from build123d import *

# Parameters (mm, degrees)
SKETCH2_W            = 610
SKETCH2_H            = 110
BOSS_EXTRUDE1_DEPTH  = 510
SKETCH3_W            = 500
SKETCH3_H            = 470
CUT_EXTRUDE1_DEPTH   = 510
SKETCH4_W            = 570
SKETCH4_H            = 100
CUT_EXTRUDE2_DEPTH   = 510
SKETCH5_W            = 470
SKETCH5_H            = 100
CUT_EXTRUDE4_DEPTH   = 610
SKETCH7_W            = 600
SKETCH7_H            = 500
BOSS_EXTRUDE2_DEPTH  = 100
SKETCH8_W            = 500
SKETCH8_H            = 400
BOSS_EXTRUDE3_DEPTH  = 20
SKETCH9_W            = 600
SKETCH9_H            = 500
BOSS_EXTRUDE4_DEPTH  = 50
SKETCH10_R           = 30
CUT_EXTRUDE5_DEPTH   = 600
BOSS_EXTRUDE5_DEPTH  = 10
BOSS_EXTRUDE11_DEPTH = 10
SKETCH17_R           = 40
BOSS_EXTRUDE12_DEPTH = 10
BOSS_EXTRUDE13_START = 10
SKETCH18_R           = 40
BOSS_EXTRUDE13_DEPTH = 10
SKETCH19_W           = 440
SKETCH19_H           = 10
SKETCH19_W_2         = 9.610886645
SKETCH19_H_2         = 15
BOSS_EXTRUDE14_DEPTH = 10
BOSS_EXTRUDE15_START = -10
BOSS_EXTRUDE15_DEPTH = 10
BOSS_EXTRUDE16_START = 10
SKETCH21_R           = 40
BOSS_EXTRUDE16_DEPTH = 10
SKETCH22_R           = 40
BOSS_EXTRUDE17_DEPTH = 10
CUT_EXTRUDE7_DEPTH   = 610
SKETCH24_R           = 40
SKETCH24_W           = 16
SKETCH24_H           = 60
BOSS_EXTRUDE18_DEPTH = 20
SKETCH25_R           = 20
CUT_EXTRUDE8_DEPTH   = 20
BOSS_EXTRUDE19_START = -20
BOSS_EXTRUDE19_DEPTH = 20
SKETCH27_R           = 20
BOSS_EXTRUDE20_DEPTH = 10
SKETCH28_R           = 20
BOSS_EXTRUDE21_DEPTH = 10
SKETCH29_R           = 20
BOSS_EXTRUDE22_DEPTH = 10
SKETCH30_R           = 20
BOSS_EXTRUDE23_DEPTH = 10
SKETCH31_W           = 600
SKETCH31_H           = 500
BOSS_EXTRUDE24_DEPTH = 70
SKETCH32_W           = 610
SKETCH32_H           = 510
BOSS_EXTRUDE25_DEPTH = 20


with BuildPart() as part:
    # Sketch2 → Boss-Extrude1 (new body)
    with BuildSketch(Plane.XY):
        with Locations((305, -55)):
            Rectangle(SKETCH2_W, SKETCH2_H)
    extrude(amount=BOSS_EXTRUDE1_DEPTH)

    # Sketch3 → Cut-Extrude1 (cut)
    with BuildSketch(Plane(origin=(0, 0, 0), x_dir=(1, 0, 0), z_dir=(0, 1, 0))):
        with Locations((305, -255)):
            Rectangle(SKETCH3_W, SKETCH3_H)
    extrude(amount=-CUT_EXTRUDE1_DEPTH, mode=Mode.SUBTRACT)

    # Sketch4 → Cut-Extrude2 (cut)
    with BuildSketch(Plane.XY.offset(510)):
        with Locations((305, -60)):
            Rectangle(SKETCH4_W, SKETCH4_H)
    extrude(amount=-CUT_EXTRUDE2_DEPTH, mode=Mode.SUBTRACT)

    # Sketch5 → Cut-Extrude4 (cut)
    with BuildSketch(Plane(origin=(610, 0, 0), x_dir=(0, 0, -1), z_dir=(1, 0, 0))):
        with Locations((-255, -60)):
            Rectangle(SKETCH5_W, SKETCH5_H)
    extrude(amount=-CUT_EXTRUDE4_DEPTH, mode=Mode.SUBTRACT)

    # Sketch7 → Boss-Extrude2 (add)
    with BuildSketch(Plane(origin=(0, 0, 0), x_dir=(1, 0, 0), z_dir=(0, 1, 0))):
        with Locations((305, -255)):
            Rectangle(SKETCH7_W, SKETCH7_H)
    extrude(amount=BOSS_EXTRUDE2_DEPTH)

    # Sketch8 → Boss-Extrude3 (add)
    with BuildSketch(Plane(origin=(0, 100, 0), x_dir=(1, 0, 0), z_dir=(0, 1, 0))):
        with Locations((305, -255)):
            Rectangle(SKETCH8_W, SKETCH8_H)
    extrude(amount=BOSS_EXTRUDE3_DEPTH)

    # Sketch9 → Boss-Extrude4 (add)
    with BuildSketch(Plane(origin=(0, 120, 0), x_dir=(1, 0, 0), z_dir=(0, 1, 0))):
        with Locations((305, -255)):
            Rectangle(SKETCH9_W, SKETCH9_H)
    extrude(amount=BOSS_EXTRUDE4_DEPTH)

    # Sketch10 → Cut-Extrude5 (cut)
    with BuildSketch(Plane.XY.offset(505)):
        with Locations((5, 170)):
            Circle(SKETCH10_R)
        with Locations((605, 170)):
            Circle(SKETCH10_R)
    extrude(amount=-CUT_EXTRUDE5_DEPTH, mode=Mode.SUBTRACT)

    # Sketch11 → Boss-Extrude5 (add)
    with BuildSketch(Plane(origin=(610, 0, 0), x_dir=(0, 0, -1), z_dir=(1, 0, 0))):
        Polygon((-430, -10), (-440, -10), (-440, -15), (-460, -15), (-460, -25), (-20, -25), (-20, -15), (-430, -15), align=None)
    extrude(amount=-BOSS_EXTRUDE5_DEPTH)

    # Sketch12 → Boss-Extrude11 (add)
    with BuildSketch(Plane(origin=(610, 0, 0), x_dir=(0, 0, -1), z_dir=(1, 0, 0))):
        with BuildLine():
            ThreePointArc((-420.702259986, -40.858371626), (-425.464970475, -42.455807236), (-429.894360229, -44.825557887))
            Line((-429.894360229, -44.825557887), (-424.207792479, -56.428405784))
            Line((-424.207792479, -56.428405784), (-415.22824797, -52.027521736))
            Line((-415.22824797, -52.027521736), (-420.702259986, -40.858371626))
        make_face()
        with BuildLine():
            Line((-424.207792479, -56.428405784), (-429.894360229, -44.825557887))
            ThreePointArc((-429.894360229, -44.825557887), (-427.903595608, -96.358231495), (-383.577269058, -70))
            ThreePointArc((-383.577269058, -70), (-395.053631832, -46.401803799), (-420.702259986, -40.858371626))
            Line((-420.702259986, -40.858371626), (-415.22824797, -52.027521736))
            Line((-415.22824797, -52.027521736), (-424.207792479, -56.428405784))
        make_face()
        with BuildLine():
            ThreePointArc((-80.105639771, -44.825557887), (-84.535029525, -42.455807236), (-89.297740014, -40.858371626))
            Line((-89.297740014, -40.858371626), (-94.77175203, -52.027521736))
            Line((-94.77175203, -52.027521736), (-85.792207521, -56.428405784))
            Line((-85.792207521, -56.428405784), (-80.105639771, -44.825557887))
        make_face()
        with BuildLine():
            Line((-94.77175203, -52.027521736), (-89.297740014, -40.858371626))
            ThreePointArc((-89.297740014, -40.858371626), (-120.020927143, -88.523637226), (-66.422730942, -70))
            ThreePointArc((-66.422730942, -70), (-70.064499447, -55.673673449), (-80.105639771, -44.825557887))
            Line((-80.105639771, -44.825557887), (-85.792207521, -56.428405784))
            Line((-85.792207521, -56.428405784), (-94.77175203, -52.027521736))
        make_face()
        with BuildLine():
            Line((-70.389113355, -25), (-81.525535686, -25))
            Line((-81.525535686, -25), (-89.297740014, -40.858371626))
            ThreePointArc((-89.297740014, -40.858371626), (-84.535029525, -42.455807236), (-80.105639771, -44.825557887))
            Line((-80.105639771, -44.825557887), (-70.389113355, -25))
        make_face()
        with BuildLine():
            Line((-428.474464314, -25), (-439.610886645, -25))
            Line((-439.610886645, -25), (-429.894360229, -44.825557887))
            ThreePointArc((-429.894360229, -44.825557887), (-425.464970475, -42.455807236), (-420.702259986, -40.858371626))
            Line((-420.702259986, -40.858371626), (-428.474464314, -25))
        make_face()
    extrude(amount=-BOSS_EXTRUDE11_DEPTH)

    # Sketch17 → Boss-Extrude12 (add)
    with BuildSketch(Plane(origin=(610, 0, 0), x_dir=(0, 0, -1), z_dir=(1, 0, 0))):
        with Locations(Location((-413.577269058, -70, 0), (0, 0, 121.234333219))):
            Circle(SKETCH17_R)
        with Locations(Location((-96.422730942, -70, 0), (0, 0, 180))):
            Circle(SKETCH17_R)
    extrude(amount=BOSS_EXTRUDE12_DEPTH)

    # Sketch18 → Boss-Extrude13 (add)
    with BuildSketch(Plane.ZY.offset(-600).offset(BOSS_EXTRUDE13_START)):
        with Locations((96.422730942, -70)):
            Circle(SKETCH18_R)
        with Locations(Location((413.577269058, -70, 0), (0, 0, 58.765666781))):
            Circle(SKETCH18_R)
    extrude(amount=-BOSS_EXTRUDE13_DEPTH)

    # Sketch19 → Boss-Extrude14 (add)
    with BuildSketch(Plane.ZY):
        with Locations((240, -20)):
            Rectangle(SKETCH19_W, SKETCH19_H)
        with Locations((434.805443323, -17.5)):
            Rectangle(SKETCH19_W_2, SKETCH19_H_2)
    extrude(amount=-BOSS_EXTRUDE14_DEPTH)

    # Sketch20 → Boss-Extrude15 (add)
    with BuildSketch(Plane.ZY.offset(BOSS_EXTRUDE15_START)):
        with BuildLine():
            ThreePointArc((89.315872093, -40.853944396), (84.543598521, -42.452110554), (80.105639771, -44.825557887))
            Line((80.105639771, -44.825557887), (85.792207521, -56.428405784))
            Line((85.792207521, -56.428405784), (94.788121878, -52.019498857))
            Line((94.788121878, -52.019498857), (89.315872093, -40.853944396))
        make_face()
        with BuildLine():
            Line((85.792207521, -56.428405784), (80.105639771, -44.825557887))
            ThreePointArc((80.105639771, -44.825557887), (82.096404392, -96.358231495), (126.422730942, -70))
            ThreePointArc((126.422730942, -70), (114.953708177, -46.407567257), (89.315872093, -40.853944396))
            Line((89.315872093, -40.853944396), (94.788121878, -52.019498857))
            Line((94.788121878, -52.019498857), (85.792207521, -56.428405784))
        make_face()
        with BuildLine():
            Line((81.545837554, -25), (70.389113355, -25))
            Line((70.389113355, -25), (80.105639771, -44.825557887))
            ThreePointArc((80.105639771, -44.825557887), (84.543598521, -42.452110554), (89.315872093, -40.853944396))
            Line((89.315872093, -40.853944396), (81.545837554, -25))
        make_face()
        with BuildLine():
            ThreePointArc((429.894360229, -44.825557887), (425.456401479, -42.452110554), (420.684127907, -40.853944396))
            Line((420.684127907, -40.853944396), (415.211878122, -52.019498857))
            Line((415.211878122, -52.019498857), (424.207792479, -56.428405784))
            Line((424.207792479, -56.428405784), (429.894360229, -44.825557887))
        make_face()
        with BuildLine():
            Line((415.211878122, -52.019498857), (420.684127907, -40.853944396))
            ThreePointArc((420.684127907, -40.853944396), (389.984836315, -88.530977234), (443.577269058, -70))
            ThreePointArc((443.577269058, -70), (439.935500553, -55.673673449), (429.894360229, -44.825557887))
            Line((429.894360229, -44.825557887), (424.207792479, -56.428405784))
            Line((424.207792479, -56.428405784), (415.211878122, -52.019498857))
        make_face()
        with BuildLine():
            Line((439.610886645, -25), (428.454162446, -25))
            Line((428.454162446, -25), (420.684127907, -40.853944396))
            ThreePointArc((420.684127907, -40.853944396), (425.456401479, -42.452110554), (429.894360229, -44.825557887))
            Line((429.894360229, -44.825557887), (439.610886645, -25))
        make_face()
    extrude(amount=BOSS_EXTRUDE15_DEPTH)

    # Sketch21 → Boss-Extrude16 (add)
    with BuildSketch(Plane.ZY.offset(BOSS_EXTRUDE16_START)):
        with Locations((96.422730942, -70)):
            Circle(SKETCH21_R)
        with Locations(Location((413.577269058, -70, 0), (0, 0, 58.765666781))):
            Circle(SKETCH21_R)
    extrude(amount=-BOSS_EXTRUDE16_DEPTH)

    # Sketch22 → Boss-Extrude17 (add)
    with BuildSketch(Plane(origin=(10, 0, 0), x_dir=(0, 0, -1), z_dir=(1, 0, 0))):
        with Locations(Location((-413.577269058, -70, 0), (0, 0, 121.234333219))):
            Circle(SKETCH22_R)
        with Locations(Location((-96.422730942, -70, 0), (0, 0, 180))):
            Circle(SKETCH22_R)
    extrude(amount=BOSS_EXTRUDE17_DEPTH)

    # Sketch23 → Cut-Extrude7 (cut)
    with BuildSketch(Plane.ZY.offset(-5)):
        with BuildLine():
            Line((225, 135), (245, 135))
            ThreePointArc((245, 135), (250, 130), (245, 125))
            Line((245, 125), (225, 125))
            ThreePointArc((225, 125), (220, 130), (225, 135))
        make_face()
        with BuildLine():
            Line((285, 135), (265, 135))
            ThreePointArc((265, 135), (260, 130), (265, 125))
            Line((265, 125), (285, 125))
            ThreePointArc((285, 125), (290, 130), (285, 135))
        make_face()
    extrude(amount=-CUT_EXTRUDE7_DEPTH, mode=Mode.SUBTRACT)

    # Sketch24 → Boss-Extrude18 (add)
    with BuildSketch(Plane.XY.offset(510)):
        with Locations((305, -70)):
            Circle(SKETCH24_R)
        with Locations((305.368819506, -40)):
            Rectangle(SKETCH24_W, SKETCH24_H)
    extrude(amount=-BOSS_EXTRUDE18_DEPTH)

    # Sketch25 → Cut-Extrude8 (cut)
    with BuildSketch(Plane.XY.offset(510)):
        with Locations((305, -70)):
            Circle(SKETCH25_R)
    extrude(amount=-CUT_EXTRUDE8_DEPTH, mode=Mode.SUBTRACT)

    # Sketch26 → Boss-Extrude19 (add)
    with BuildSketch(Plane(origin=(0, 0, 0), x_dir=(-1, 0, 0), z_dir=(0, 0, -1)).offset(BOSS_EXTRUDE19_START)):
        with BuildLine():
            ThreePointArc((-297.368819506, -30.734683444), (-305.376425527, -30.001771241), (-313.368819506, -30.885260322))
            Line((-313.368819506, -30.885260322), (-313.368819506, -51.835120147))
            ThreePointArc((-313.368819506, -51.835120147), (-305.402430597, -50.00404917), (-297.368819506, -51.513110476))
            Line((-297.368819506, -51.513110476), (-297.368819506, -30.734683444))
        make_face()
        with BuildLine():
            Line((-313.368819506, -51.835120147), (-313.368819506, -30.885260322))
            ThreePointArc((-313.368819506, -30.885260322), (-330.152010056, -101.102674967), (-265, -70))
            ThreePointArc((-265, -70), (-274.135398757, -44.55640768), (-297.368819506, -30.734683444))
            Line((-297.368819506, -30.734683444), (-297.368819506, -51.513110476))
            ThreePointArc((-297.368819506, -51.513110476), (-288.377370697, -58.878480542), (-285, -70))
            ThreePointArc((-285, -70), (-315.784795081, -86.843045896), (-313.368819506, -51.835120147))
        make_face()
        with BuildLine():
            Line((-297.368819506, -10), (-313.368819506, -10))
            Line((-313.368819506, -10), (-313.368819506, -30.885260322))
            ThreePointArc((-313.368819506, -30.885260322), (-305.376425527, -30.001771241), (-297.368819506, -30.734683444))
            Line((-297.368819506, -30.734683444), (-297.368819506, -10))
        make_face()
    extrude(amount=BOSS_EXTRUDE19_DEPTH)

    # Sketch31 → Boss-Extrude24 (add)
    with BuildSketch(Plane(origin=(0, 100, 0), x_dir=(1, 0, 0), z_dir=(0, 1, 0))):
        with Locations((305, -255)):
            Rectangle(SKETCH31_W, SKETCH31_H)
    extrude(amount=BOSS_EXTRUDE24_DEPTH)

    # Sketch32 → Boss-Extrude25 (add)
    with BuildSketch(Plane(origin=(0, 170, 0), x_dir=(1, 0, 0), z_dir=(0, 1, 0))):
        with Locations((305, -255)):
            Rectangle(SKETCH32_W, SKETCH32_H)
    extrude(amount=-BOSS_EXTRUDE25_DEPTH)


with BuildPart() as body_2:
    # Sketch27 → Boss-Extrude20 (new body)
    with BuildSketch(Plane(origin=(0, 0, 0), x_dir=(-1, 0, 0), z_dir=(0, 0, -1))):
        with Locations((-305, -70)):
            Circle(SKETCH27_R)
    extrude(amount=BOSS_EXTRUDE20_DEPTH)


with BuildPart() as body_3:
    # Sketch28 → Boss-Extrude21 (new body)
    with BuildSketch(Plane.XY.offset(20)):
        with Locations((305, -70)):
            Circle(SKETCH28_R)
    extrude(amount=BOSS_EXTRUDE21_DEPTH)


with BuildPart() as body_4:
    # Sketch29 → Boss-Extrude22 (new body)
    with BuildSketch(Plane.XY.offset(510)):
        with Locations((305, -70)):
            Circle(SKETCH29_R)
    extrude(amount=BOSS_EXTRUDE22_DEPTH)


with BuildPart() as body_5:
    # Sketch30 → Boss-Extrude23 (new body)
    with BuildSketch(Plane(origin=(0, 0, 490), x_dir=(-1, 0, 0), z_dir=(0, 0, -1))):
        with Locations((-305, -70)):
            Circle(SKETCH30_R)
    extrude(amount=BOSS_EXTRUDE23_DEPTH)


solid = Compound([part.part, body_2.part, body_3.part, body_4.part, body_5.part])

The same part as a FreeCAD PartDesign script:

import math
import FreeCAD as App
import Part
import Sketcher
from FreeCAD import Vector
Q = App.Units.Quantity


def add_polygon(sketch, points):
    """Adds a closed chain of lines whose ends are joined by coincident constraints."""
    first, n = sketch.GeometryCount, len(points)
    for a, b in zip(points, points[1:] + points[:1]):
        sketch.addGeometry(Part.LineSegment(App.Vector(*a, 0), App.Vector(*b, 0)), False)
    for i in range(n):
        sketch.addConstraint(Sketcher.Constraint("Coincident", first + i, 2, first + (i + 1) % n, 1))

doc = App.newDocument("Part")
body = doc.addObject("PartDesign::Body", "Body")

sketch1 = body.newObject("Sketcher::SketchObject", "Sketch")
sketch1.AttachmentSupport = (doc.getObject("XY_Plane"), [""])
sketch1.MapMode = "FlatFace"
add_polygon(sketch1, [(0, 0), (0, -110), (610, -110), (610, 0)])
sketch1.addConstraint([
    Sketcher.Constraint("Vertical", 0),
    Sketcher.Constraint("Horizontal", 1),
    Sketcher.Constraint("Vertical", 2),
    Sketcher.Constraint("Horizontal", 3),
    Sketcher.Constraint("Coincident", 3, 2, -1, 1),
    Sketcher.Constraint("DistanceX", 1, 1, 1, 2, Q("610 mm")),
    Sketcher.Constraint("DistanceY", 0, 2, 0, 1, Q("110 mm")),
])
pad1 = body.newObject("PartDesign::Pad", "Pad")
pad1.Profile = sketch1
pad1.Length = 510

sketch2 = body.newObject("Sketcher::SketchObject", "Sketch001")
sketch2.AttachmentSupport = (doc.getObject("XZ_Plane"), [""])
sketch2.MapMode = "FlatFace"
add_polygon(sketch2, [(55, 20), (55, 490), (555, 490), (555, 20)])
sketch2.addConstraint([
    Sketcher.Constraint("Vertical", 0),
    Sketcher.Constraint("Horizontal", 1),
    Sketcher.Constraint("Vertical", 2),
    Sketcher.Constraint("Horizontal", 3),
    Sketcher.Constraint("DistanceX", 1, 1, 1, 2, Q("500 mm")),
    Sketcher.Constraint("DistanceY", 0, 1, 0, 2, Q("470 mm")),
    Sketcher.Constraint("DistanceX", -1, 1, 0, 2, Q("55 mm")),
    Sketcher.Constraint("DistanceY", -1, 1, 0, 2, Q("490 mm")),
])
pocket1 = body.newObject("PartDesign::Pocket", "Pocket")
pocket1.Profile = sketch2
pocket1.Length = 510
pocket1.Reversed = True

sketch3 = body.newObject("Sketcher::SketchObject", "Sketch002")
sketch3.AttachmentSupport = (doc.getObject("XY_Plane"), [""])
sketch3.MapMode = "FlatFace"
sketch3.AttachmentOffset = App.Placement(Vector(0, 0, 510), App.Rotation())
add_polygon(sketch3, [(20, -10), (20, -110), (590, -110), (590, -10)])
sketch3.addConstraint([
    Sketcher.Constraint("Vertical", 0),
    Sketcher.Constraint("Horizontal", 1),
    Sketcher.Constraint("Vertical", 2),
    Sketcher.Constraint("Horizontal", 3),
    Sketcher.Constraint("DistanceX", 1, 1, 1, 2, Q("570 mm")),
    Sketcher.Constraint("DistanceY", 0, 2, 0, 1, Q("100 mm")),
    Sketcher.Constraint("DistanceX", -1, 1, 0, 2, Q("20 mm")),
    Sketcher.Constraint("DistanceY", 0, 2, -1, 1, Q("110 mm")),
])
pocket2 = body.newObject("PartDesign::Pocket", "Pocket001")
pocket2.Profile = sketch3
pocket2.Length = 510

sketch4 = body.newObject("Sketcher::SketchObject", "Sketch003")
sketch4.AttachmentSupport = (doc.getObject("YZ_Plane"), [""])
sketch4.MapMode = "FlatFace"
sketch4.AttachmentOffset = App.Placement(Vector(0, 0, 610), App.Rotation())
add_polygon(sketch4, [(-10, 490), (-110, 490), (-110, 20), (-10, 20)])
sketch4.addConstraint([
    Sketcher.Constraint("Horizontal", 0),
    Sketcher.Constraint("Vertical", 1),
    Sketcher.Constraint("Horizontal", 2),
    Sketcher.Constraint("Vertical", 3),
    Sketcher.Constraint("DistanceX", 0, 2, 0, 1, Q("100 mm")),
    Sketcher.Constraint("DistanceY", 1, 2, 1, 1, Q("470 mm")),
    Sketcher.Constraint("DistanceX", 0, 2, -1, 1, Q("110 mm")),
    Sketcher.Constraint("DistanceY", -1, 1, 0, 2, Q("490 mm")),
])
pocket3 = body.newObject("PartDesign::Pocket", "Pocket002")
pocket3.Profile = sketch4
pocket3.Length = 610

sketch5 = body.newObject("Sketcher::SketchObject", "Sketch004")
sketch5.AttachmentSupport = (doc.getObject("XZ_Plane"), [""])
sketch5.MapMode = "FlatFace"
add_polygon(sketch5, [(5, 5), (5, 505), (605, 505), (605, 5)])
sketch5.addConstraint([
    Sketcher.Constraint("Vertical", 0),
    Sketcher.Constraint("Horizontal", 1),
    Sketcher.Constraint("Vertical", 2),
    Sketcher.Constraint("Horizontal", 3),
    Sketcher.Constraint("DistanceX", 1, 1, 1, 2, Q("600 mm")),
    Sketcher.Constraint("DistanceY", 0, 1, 0, 2, Q("500 mm")),
    Sketcher.Constraint("DistanceX", -1, 1, 0, 2, Q("5 mm")),
    Sketcher.Constraint("DistanceY", -1, 1, 0, 2, Q("505 mm")),
])
pad2 = body.newObject("PartDesign::Pad", "Pad001")
pad2.Profile = sketch5
pad2.Length = 100
pad2.Reversed = True

sketch6 = body.newObject("Sketcher::SketchObject", "Sketch005")
sketch6.AttachmentSupport = (doc.getObject("XZ_Plane"), [""])
sketch6.MapMode = "FlatFace"
sketch6.AttachmentOffset = App.Placement(Vector(0, 0, -100), App.Rotation())
add_polygon(sketch6, [(55, 55), (55, 455), (555, 455), (555, 55)])
sketch6.addConstraint([
    Sketcher.Constraint("Vertical", 0),
    Sketcher.Constraint("Horizontal", 1),
    Sketcher.Constraint("Vertical", 2),
    Sketcher.Constraint("Horizontal", 3),
    Sketcher.Constraint("DistanceX", 1, 1, 1, 2, Q("500 mm")),
    Sketcher.Constraint("DistanceY", 0, 1, 0, 2, Q("400 mm")),
    Sketcher.Constraint("DistanceX", -1, 1, 0, 2, Q("55 mm")),
    Sketcher.Constraint("DistanceY", -1, 1, 0, 2, Q("455 mm")),
])
pad3 = body.newObject("PartDesign::Pad", "Pad002")
pad3.Profile = sketch6
pad3.Length = 20
pad3.Reversed = True

sketch7 = body.newObject("Sketcher::SketchObject", "Sketch006")
sketch7.AttachmentSupport = (doc.getObject("XZ_Plane"), [""])
sketch7.MapMode = "FlatFace"
sketch7.AttachmentOffset = App.Placement(Vector(0, 0, -120), App.Rotation())
add_polygon(sketch7, [(5, 5), (5, 505), (605, 505), (605, 5)])
sketch7.addConstraint([
    Sketcher.Constraint("Vertical", 0),
    Sketcher.Constraint("Horizontal", 1),
    Sketcher.Constraint("Vertical", 2),
    Sketcher.Constraint("Horizontal", 3),
    Sketcher.Constraint("DistanceX", 1, 1, 1, 2, Q("600 mm")),
    Sketcher.Constraint("DistanceY", 0, 1, 0, 2, Q("500 mm")),
    Sketcher.Constraint("DistanceX", -1, 1, 0, 2, Q("5 mm")),
    Sketcher.Constraint("DistanceY", -1, 1, 0, 2, Q("505 mm")),
])
pad4 = body.newObject("PartDesign::Pad", "Pad003")
pad4.Profile = sketch7
pad4.Length = 50
pad4.Reversed = True

sketch8 = body.newObject("Sketcher::SketchObject", "Sketch007")
sketch8.AttachmentSupport = (doc.getObject("XY_Plane"), [""])
sketch8.MapMode = "FlatFace"
sketch8.AttachmentOffset = App.Placement(Vector(0, 0, 505), App.Rotation())
sketch8.addGeometry([
    Part.Circle(Vector(5, 170, 0), Vector(0, 0, 1), 30),
    Part.Circle(Vector(605, 170, 0), Vector(0, 0, 1), 30),
], False)
sketch8.addConstraint([
    Sketcher.Constraint("Equal", 0, 1),
    Sketcher.Constraint("Horizontal", 0, 3, 1, 3),
    Sketcher.Constraint("Diameter", 0, Q("60 mm")),
    Sketcher.Constraint("DistanceX", -1, 1, 0, 3, Q("5 mm")),
    Sketcher.Constraint("DistanceY", -1, 1, 0, 3, Q("170 mm")),
    Sketcher.Constraint("DistanceX", -1, 1, 1, 3, Q("605 mm")),
])
pocket4 = body.newObject("PartDesign::Pocket", "Pocket003")
pocket4.Profile = sketch8
pocket4.Length = 600

sketch9 = body.newObject("Sketcher::SketchObject", "Sketch008")
sketch9.AttachmentSupport = (doc.getObject("YZ_Plane"), [""])
sketch9.MapMode = "FlatFace"
sketch9.AttachmentOffset = App.Placement(Vector(0, 0, 610), App.Rotation())
add_polygon(sketch9, [(-10, 430), (-10, 440), (-15, 440), (-15, 460), (-25, 460), (-25, 20), (-15, 20), (-15, 430)])
sketch9.addConstraint([
    Sketcher.Constraint("Vertical", 0),
    Sketcher.Constraint("Horizontal", 1),
    Sketcher.Constraint("Vertical", 2),
    Sketcher.Constraint("Horizontal", 3),
    Sketcher.Constraint("Vertical", 4),
    Sketcher.Constraint("Horizontal", 5),
    Sketcher.Constraint("Vertical", 6),
    Sketcher.Constraint("Horizontal", 7),
    Sketcher.Constraint("Vertical", 2, 2, 5, 2),
    Sketcher.Constraint("Equal", 5, 0),
    Sketcher.Constraint("DistanceX", 1, 2, 1, 1, Q("5 mm")),
    Sketcher.Constraint("DistanceX", 3, 2, 3, 1, Q("10 mm")),
    Sketcher.Constraint("DistanceY", 2, 1, 2, 2, Q("20 mm")),
    Sketcher.Constraint("DistanceY", 4, 2, 4, 1, Q("440 mm")),
    Sketcher.Constraint("DistanceX", 0, 2, -1, 1, Q("10 mm")),
    Sketcher.Constraint("DistanceY", -1, 1, 0, 2, Q("440 mm")),
])
pad5 = body.newObject("PartDesign::Pad", "Pad004")
pad5.Profile = sketch9
pad5.Length = 10
pad5.Reversed = True

sketch10 = body.newObject("Sketcher::SketchObject", "Sketch009")
sketch10.AttachmentSupport = (doc.getObject("YZ_Plane"), [""])
sketch10.MapMode = "FlatFace"
sketch10.AttachmentOffset = App.Placement(Vector(0, 0, 610), App.Rotation())
sketch10.addGeometry([
    Part.ArcOfCircle(Part.Circle(Vector(-70, 414, 0), Vector(0, 0, 1), 30), math.radians(33), math.radians(270)),
    Part.ArcOfCircle(Part.Circle(Vector(-70, 414, 0), Vector(0, 0, 1), 30), math.radians(-90), math.radians(14)),
    Part.LineSegment(Vector(-41, 421, 0), Vector(-25, 428, 0)),
    Part.LineSegment(Vector(-25, 428, 0), Vector(-25, 440, 0)),
    Part.LineSegment(Vector(-25, 440, 0), Vector(-45, 430, 0)),
    Part.ArcOfCircle(Part.Circle(Vector(-70, 96, 0), Vector(0, 0, 1), 30), math.radians(-14), math.radians(270)),
    Part.ArcOfCircle(Part.Circle(Vector(-70, 96, 0), Vector(0, 0, 1), 30), math.radians(-90), math.radians(-33)),
    Part.LineSegment(Vector(-45, 80, 0), Vector(-25, 70, 0)),
    Part.LineSegment(Vector(-25, 70, 0), Vector(-25, 82, 0)),
    Part.LineSegment(Vector(-25, 82, 0), Vector(-41, 89, 0)),
], False)
sketch10.addConstraint([
    Sketcher.Constraint("Tangent", 0, 2, 1, 1),
    Sketcher.Constraint("Coincident", 1, 2, 2, 1),
    Sketcher.Constraint("Coincident", 2, 2, 3, 1),
    Sketcher.Constraint("Coincident", 3, 2, 4, 1),
    Sketcher.Constraint("Coincident", 4, 2, 0, 1),
    Sketcher.Constraint("Tangent", 5, 2, 6, 1),
    Sketcher.Constraint("Coincident", 6, 2, 7, 1),
    Sketcher.Constraint("Coincident", 7, 2, 8, 1),
    Sketcher.Constraint("Coincident", 8, 2, 9, 1),
    Sketcher.Constraint("Coincident", 9, 2, 5, 1),
    Sketcher.Constraint("Vertical", 3),
    Sketcher.Constraint("Vertical", 8),
    Sketcher.Constraint("Equal", 0, 1),
    Sketcher.Constraint("Equal", 1, 5),
    Sketcher.Constraint("Equal", 5, 6),
    Sketcher.Constraint("Parallel", 2, 4),
    Sketcher.Constraint("Parallel", 7, 9),
    Sketcher.Constraint("Vertical", 1, 3, 5, 3),
    Sketcher.Constraint("Vertical", 6, 3, 0, 2),
    Sketcher.Constraint("Vertical", 0, 2, 5, 2),
    Sketcher.Constraint("Vertical", 4, 2, 6, 2),
    Sketcher.Constraint("Vertical", 3, 2, 7, 2),
    Sketcher.Constraint("Vertical", 1, 2, 9, 2),
    Sketcher.Constraint("Equal", 3, 8),
    Sketcher.Constraint("Radius", 0, Q("30 mm")),
    Sketcher.Constraint("DistanceX", 0, 3, -1, 1, Q("70 mm")),
    Sketcher.Constraint("DistanceX", 2, 2, -1, 1, Q("25 mm")),
    Sketcher.Constraint("DistanceY", 1, 2, 4, 2, Q("9.1921 mm")),
    Sketcher.Constraint("Distance", 4, Q("22.078579 mm")),
    Sketcher.Constraint("DistanceY", 3, 1, 3, 2, Q("11.136422 mm")),
    Sketcher.Constraint("DistanceY", -1, 1, 0, 3, Q("413.577269 mm")),
    Sketcher.Constraint("DistanceY", -1, 1, 5, 3, Q("96.422731 mm")),
])
pad6 = body.newObject("PartDesign::Pad", "Pad005")
pad6.Profile = sketch10
pad6.Length = 10
pad6.Reversed = True

sketch11 = body.newObject("Sketcher::SketchObject", "Sketch010")
sketch11.AttachmentSupport = (doc.getObject("YZ_Plane"), [""])
sketch11.MapMode = "FlatFace"
sketch11.AttachmentOffset = App.Placement(Vector(0, 0, 610), App.Rotation())
sketch11.addGeometry([
    Part.Circle(Vector(-70, 414, 0), Vector(0, 0, 1), 40),
    Part.Circle(Vector(-70, 96, 0), Vector(0, 0, 1), 40),
], False)
sketch11.addConstraint([
    Sketcher.Constraint("Equal", 0, 1),
    Sketcher.Constraint("Vertical", 0, 3, 1, 3),
    Sketcher.Constraint("Diameter", 0, Q("80 mm")),
    Sketcher.Constraint("DistanceX", 0, 3, -1, 1, Q("70 mm")),
    Sketcher.Constraint("DistanceY", -1, 1, 0, 3, Q("413.577269 mm")),
    Sketcher.Constraint("DistanceY", -1, 1, 1, 3, Q("96.422731 mm")),
])
pad7 = body.newObject("PartDesign::Pad", "Pad006")
pad7.Profile = sketch11
pad7.Length = 10

sketch12 = body.newObject("Sketcher::SketchObject", "Sketch011")
sketch12.AttachmentSupport = (doc.getObject("YZ_Plane"), [""])
sketch12.MapMode = "FlatFace"
sketch12.AttachmentOffset = App.Placement(Vector(0, 0, 590), App.Rotation())
sketch12.addGeometry([
    Part.Circle(Vector(-70, 96, 0), Vector(0, 0, 1), 40),
    Part.Circle(Vector(-70, 414, 0), Vector(0, 0, 1), 40),
], False)
sketch12.addConstraint([
    Sketcher.Constraint("Equal", 0, 1),
    Sketcher.Constraint("Vertical", 0, 3, 1, 3),
    Sketcher.Constraint("Diameter", 0, Q("80 mm")),
    Sketcher.Constraint("DistanceX", 0, 3, -1, 1, Q("70 mm")),
    Sketcher.Constraint("DistanceY", -1, 1, 0, 3, Q("96.422731 mm")),
    Sketcher.Constraint("DistanceY", -1, 1, 1, 3, Q("413.577269 mm")),
])
pad8 = body.newObject("PartDesign::Pad", "Pad007")
pad8.Profile = sketch12
pad8.Length = 10

sketch13 = body.newObject("Sketcher::SketchObject", "Sketch012")
sketch13.AttachmentSupport = (doc.getObject("YZ_Plane"), [""])
sketch13.MapMode = "FlatFace"
add_polygon(sketch13, [(-15, 20), (-25, 20), (-25, 460), (-15, 460), (-15, 440), (-10, 440), (-10, 430), (-15, 430)])
sketch13.addConstraint([
    Sketcher.Constraint("Horizontal", 0),
    Sketcher.Constraint("Vertical", 1),
    Sketcher.Constraint("Horizontal", 2),
    Sketcher.Constraint("Vertical", 3),
    Sketcher.Constraint("Horizontal", 4),
    Sketcher.Constraint("Vertical", 5),
    Sketcher.Constraint("Horizontal", 6),
    Sketcher.Constraint("Vertical", 7),
    Sketcher.Constraint("Vertical", 3, 2, 6, 2),
    Sketcher.Constraint("DistanceX", 0, 2, 0, 1, Q("10 mm")),
    Sketcher.Constraint("DistanceX", 4, 1, 4, 2, Q("5 mm")),
    Sketcher.Constraint("DistanceY", 1, 1, 1, 2, Q("440 mm")),
    Sketcher.Constraint("DistanceY", 7, 2, 7, 1, Q("410 mm")),
    Sketcher.Constraint("DistanceX", 0, 2, -1, 1, Q("25 mm")),
    Sketcher.Constraint("DistanceY", -1, 1, 0, 2, Q("20 mm")),
    Sketcher.Constraint("DistanceY", 3, 2, 3, 1, Q("20.389113 mm")),
])
pad9 = body.newObject("PartDesign::Pad", "Pad008")
pad9.Profile = sketch13
pad9.Length = 10

sketch14 = body.newObject("Sketcher::SketchObject", "Sketch013")
sketch14.AttachmentSupport = (doc.getObject("YZ_Plane"), [""])
sketch14.MapMode = "FlatFace"
sketch14.AttachmentOffset = App.Placement(Vector(0, 0, 10), App.Rotation())
sketch14.addGeometry([
    Part.ArcOfCircle(Part.Circle(Vector(-70, 96, 0), Vector(0, 0, 1), 30), math.radians(90), math.radians(327)),
    Part.ArcOfCircle(Part.Circle(Vector(-70, 96, 0), Vector(0, 0, 1), 30), math.radians(-14), math.radians(90)),
    Part.LineSegment(Vector(-41, 89, 0), Vector(-25, 82, 0)),
    Part.LineSegment(Vector(-25, 82, 0), Vector(-25, 70, 0)),
    Part.LineSegment(Vector(-25, 70, 0), Vector(-45, 80, 0)),
    Part.ArcOfCircle(Part.Circle(Vector(-70, 414, 0), Vector(0, 0, 1), 30), math.radians(90), math.radians(374)),
    Part.ArcOfCircle(Part.Circle(Vector(-70, 414, 0), Vector(0, 0, 1), 30), math.radians(33), math.radians(90)),
    Part.LineSegment(Vector(-45, 430, 0), Vector(-25, 440, 0)),
    Part.LineSegment(Vector(-25, 440, 0), Vector(-25, 428, 0)),
    Part.LineSegment(Vector(-25, 428, 0), Vector(-41, 421, 0)),
], False)
sketch14.addConstraint([
    Sketcher.Constraint("Tangent", 0, 1, 1, 2),
    Sketcher.Constraint("Coincident", 1, 1, 2, 1),
    Sketcher.Constraint("Coincident", 2, 2, 3, 1),
    Sketcher.Constraint("Coincident", 3, 2, 4, 1),
    Sketcher.Constraint("Coincident", 4, 2, 0, 2),
    Sketcher.Constraint("Tangent", 5, 1, 6, 2),
    Sketcher.Constraint("Coincident", 6, 1, 7, 1),
    Sketcher.Constraint("Coincident", 7, 2, 8, 1),
    Sketcher.Constraint("Coincident", 8, 2, 9, 1),
    Sketcher.Constraint("Coincident", 9, 2, 5, 2),
    Sketcher.Constraint("Vertical", 3),
    Sketcher.Constraint("Vertical", 8),
    Sketcher.Constraint("Equal", 0, 1),
    Sketcher.Constraint("Equal", 1, 5),
    Sketcher.Constraint("Equal", 5, 6),
    Sketcher.Constraint("Parallel", 2, 4),
    Sketcher.Constraint("Parallel", 7, 9),
    Sketcher.Constraint("Vertical", 1, 3, 5, 3),
    Sketcher.Constraint("Vertical", 6, 3, 0, 1),
    Sketcher.Constraint("Vertical", 0, 1, 5, 1),
    Sketcher.Constraint("Vertical", 4, 2, 6, 1),
    Sketcher.Constraint("Vertical", 3, 2, 7, 2),
    Sketcher.Constraint("Vertical", 1, 1, 9, 2),
    Sketcher.Constraint("Equal", 3, 8),
    Sketcher.Constraint("Radius", 0, Q("30 mm")),
    Sketcher.Constraint("DistanceX", 0, 3, -1, 1, Q("70 mm")),
    Sketcher.Constraint("DistanceX", 2, 2, -1, 1, Q("25 mm")),
    Sketcher.Constraint("Distance", 4, Q("22.078579 mm")),
    Sketcher.Constraint("DistanceY", 3, 2, 3, 1, Q("11.156724 mm")),
    Sketcher.Constraint("DistanceY", -1, 1, 0, 3, Q("96.422731 mm")),
    Sketcher.Constraint("DistanceY", -1, 1, 5, 3, Q("413.577269 mm")),
    Sketcher.Constraint("DistanceY", -1, 1, 4, 2, Q("80.10564 mm")),
])
pad10 = body.newObject("PartDesign::Pad", "Pad009")
pad10.Profile = sketch14
pad10.Length = 10
pad10.Reversed = True

sketch15 = body.newObject("Sketcher::SketchObject", "Sketch014")
sketch15.AttachmentSupport = (doc.getObject("YZ_Plane"), [""])
sketch15.MapMode = "FlatFace"
sketch15.AttachmentOffset = App.Placement(Vector(0, 0, -10), App.Rotation())
sketch15.addGeometry([
    Part.Circle(Vector(-70, 96, 0), Vector(0, 0, 1), 40),
    Part.Circle(Vector(-70, 414, 0), Vector(0, 0, 1), 40),
], False)
sketch15.addConstraint([
    Sketcher.Constraint("Equal", 0, 1),
    Sketcher.Constraint("Vertical", 0, 3, 1, 3),
    Sketcher.Constraint("Diameter", 0, Q("80 mm")),
    Sketcher.Constraint("DistanceX", 0, 3, -1, 1, Q("70 mm")),
    Sketcher.Constraint("DistanceY", -1, 1, 0, 3, Q("96.422731 mm")),
    Sketcher.Constraint("DistanceY", -1, 1, 1, 3, Q("413.577269 mm")),
])
pad11 = body.newObject("PartDesign::Pad", "Pad010")
pad11.Profile = sketch15
pad11.Length = 10

sketch16 = body.newObject("Sketcher::SketchObject", "Sketch015")
sketch16.AttachmentSupport = (doc.getObject("YZ_Plane"), [""])
sketch16.MapMode = "FlatFace"
sketch16.AttachmentOffset = App.Placement(Vector(0, 0, 10), App.Rotation())
sketch16.addGeometry([
    Part.Circle(Vector(-70, 414, 0), Vector(0, 0, 1), 40),
    Part.Circle(Vector(-70, 96, 0), Vector(0, 0, 1), 40),
], False)
sketch16.addConstraint([
    Sketcher.Constraint("Equal", 0, 1),
    Sketcher.Constraint("Vertical", 0, 3, 1, 3),
    Sketcher.Constraint("Diameter", 0, Q("80 mm")),
    Sketcher.Constraint("DistanceX", 0, 3, -1, 1, Q("70 mm")),
    Sketcher.Constraint("DistanceY", -1, 1, 0, 3, Q("413.577269 mm")),
    Sketcher.Constraint("DistanceY", -1, 1, 1, 3, Q("96.422731 mm")),
])
pad12 = body.newObject("PartDesign::Pad", "Pad011")
pad12.Profile = sketch16
pad12.Length = 10

sketch17 = body.newObject("Sketcher::SketchObject", "Sketch016")
sketch17.AttachmentSupport = (doc.getObject("YZ_Plane"), [""])
sketch17.MapMode = "FlatFace"
sketch17.AttachmentOffset = App.Placement(Vector(0, 0, 5), App.Rotation())
sketch17.addGeometry([
    Part.LineSegment(Vector(135, 245, 0), Vector(135, 225, 0)),
    Part.ArcOfCircle(Part.Circle(Vector(130, 225, 0), Vector(0, 0, 1), 5), math.radians(180), math.radians(360)),
    Part.LineSegment(Vector(125, 225, 0), Vector(125, 245, 0)),
    Part.ArcOfCircle(Part.Circle(Vector(130, 245, 0), Vector(0, 0, 1), 5), math.radians(0), math.radians(180)),
    Part.LineSegment(Vector(135, 285, 0), Vector(135, 265, 0)),
    Part.ArcOfCircle(Part.Circle(Vector(130, 265, 0), Vector(0, 0, 1), 5), math.radians(180), math.radians(360)),
    Part.LineSegment(Vector(125, 265, 0), Vector(125, 285, 0)),
    Part.ArcOfCircle(Part.Circle(Vector(130, 285, 0), Vector(0, 0, 1), 5), math.radians(0), math.radians(180)),
], False)
sketch17.addConstraint([
    Sketcher.Constraint("Tangent", 0, 2, 1, 2),
    Sketcher.Constraint("Tangent", 1, 1, 2, 1),
    Sketcher.Constraint("Tangent", 2, 2, 3, 2),
    Sketcher.Constraint("Tangent", 3, 1, 0, 1),
    Sketcher.Constraint("Tangent", 4, 2, 5, 2),
    Sketcher.Constraint("Tangent", 5, 1, 6, 1),
    Sketcher.Constraint("Tangent", 6, 2, 7, 2),
    Sketcher.Constraint("Tangent", 7, 1, 4, 1),
    Sketcher.Constraint("Vertical", 0),
    Sketcher.Constraint("Vertical", 2),
    Sketcher.Constraint("Vertical", 4),
    Sketcher.Constraint("Vertical", 6),
    Sketcher.Constraint("Equal", 3, 5),
    Sketcher.Constraint("Vertical", 3, 3, 5, 3),
    Sketcher.Constraint("Equal", 2, 4),
    Sketcher.Constraint("Radius", 1, Q("5 mm")),
    Sketcher.Constraint("DistanceY", 0, 2, 0, 1, Q("20 mm")),
    Sketcher.Constraint("DistanceX", -1, 1, 1, 3, Q("130 mm")),
    Sketcher.Constraint("DistanceY", -1, 1, 1, 3, Q("225 mm")),
    Sketcher.Constraint("DistanceY", -1, 1, 5, 3, Q("265 mm")),
])
pocket5 = body.newObject("PartDesign::Pocket", "Pocket004")
pocket5.Profile = sketch17
pocket5.Length = 610
pocket5.Reversed = True

sketch18 = body.newObject("Sketcher::SketchObject", "Sketch017")
sketch18.AttachmentSupport = (doc.getObject("XY_Plane"), [""])
sketch18.MapMode = "FlatFace"
sketch18.AttachmentOffset = App.Placement(Vector(0, 0, 510), App.Rotation())
sketch18.addGeometry([
    Part.ArcOfCircle(Part.Circle(Vector(305, -70, 0), Vector(0, 0, 1), 40), math.radians(101), math.radians(438)),
    Part.LineSegment(Vector(313, -31, 0), Vector(313, -10, 0)),
    Part.LineSegment(Vector(313, -10, 0), Vector(297, -10, 0)),
    Part.LineSegment(Vector(297, -10, 0), Vector(297, -31, 0)),
], False)
sketch18.addConstraint([
    Sketcher.Constraint("Coincident", 0, 2, 1, 1),
    Sketcher.Constraint("Coincident", 1, 2, 2, 1),
    Sketcher.Constraint("Coincident", 2, 2, 3, 1),
    Sketcher.Constraint("Coincident", 3, 2, 0, 1),
    Sketcher.Constraint("Vertical", 1),
    Sketcher.Constraint("Horizontal", 2),
    Sketcher.Constraint("Vertical", 3),
    Sketcher.Constraint("Radius", 0, Q("40 mm")),
    Sketcher.Constraint("DistanceX", 2, 2, 2, 1, Q("16 mm")),
    Sketcher.Constraint("DistanceX", -1, 1, 0, 3, Q("305 mm")),
    Sketcher.Constraint("DistanceY", 0, 3, -1, 1, Q("70 mm")),
    Sketcher.Constraint("DistanceY", 1, 2, -1, 1, Q("10 mm")),
    Sketcher.Constraint("DistanceY", 1, 1, 1, 2, Q("20.88526 mm")),
])
pad13 = body.newObject("PartDesign::Pad", "Pad012")
pad13.Profile = sketch18
pad13.Length = 20
pad13.Reversed = True

sketch19 = body.newObject("Sketcher::SketchObject", "Sketch018")
sketch19.AttachmentSupport = (doc.getObject("XY_Plane"), [""])
sketch19.MapMode = "FlatFace"
sketch19.AttachmentOffset = App.Placement(Vector(0, 0, 510), App.Rotation())
sketch19.addGeometry(Part.Circle(Vector(305, -70, 0), Vector(0, 0, 1), 20), False)
sketch19.addConstraint([
    Sketcher.Constraint("Diameter", 0, Q("40 mm")),
    Sketcher.Constraint("DistanceX", -1, 1, 0, 3, Q("305 mm")),
    Sketcher.Constraint("DistanceY", 0, 3, -1, 1, Q("70 mm")),
])
pocket6 = body.newObject("PartDesign::Pocket", "Pocket005")
pocket6.Profile = sketch19
pocket6.Length = 20

sketch20 = body.newObject("Sketcher::SketchObject", "Sketch019")
sketch20.AttachmentSupport = (doc.getObject("XY_Plane"), [""])
sketch20.MapMode = "FlatFace"
sketch20.AttachmentOffset = App.Placement(Vector(0, 0, 20), App.Rotation())
sketch20.addGeometry([
    Part.ArcOfCircle(Part.Circle(Vector(305, -70, 0), Vector(0, 0, 1), 40), math.radians(101), math.radians(180)),
    Part.LineSegment(Vector(297, -31, 0), Vector(297, -10, 0)),
    Part.LineSegment(Vector(297, -10, 0), Vector(313, -10, 0)),
    Part.LineSegment(Vector(313, -10, 0), Vector(313, -31, 0)),
    Part.ArcOfCircle(Part.Circle(Vector(305, -70, 0), Vector(0, 0, 1), 40), math.radians(180), math.radians(438)),
    Part.ArcOfCircle(Part.Circle(Vector(305, -70, 0), Vector(0, 0, 1), 20), math.radians(112), math.radians(180)),
    Part.ArcOfCircle(Part.Circle(Vector(305, -70, 0), Vector(0, 0, 1), 20), math.radians(180), math.radians(425)),
    Part.ArcOfCircle(Part.Circle(Vector(305, -70, 0), Vector(0, 0, 1), 20), math.radians(65), math.radians(112)),
], False)
sketch20.addConstraint([
    Sketcher.Constraint("Coincident", 0, 1, 1, 1),
    Sketcher.Constraint("Coincident", 1, 2, 2, 1),
    Sketcher.Constraint("Coincident", 2, 2, 3, 1),
    Sketcher.Constraint("Coincident", 3, 2, 4, 2),
    Sketcher.Constraint("Tangent", 4, 1, 0, 2),
    Sketcher.Constraint("Tangent", 5, 2, 6, 1),
    Sketcher.Constraint("Tangent", 6, 2, 7, 1),
    Sketcher.Constraint("Tangent", 7, 2, 5, 1),
    Sketcher.Constraint("Vertical", 1),
    Sketcher.Constraint("Horizontal", 2),
    Sketcher.Constraint("Vertical", 3),
    Sketcher.Constraint("Coincident", 5, 3, 0, 3),
    Sketcher.Constraint("Equal", 0, 4),
    Sketcher.Constraint("Horizontal", 7, 3, 4, 1),
    Sketcher.Constraint("Horizontal", 4, 1, 5, 2),
    Sketcher.Constraint("Vertical", 3, 2, 6, 2),
    Sketcher.Constraint("Vertical", 1, 2, 7, 2),
    Sketcher.Constraint("Radius", 0, Q("40 mm")),
    Sketcher.Constraint("Radius", 5, Q("20 mm")),
    Sketcher.Constraint("DistanceX", 2, 1, 2, 2, Q("16 mm")),
    Sketcher.Constraint("DistanceX", -1, 1, 0, 3, Q("305 mm")),
    Sketcher.Constraint("DistanceY", 0, 3, -1, 1, Q("70 mm")),
    Sketcher.Constraint("DistanceY", 1, 2, -1, 1, Q("10 mm")),
    Sketcher.Constraint("DistanceY", 3, 2, 3, 1, Q("20.88526 mm")),
])
pad14 = body.newObject("PartDesign::Pad", "Pad013")
pad14.Profile = sketch20
pad14.Length = 20
pad14.Reversed = True

sketch21 = body.newObject("Sketcher::SketchObject", "Sketch020")
sketch21.AttachmentSupport = (doc.getObject("XZ_Plane"), [""])
sketch21.MapMode = "FlatFace"
sketch21.AttachmentOffset = App.Placement(Vector(0, 0, -100), App.Rotation())
add_polygon(sketch21, [(5, 5), (5, 505), (605, 505), (605, 5)])
sketch21.addConstraint([
    Sketcher.Constraint("Vertical", 0),
    Sketcher.Constraint("Horizontal", 1),
    Sketcher.Constraint("Vertical", 2),
    Sketcher.Constraint("Horizontal", 3),
    Sketcher.Constraint("DistanceX", 1, 1, 1, 2, Q("600 mm")),
    Sketcher.Constraint("DistanceY", 0, 1, 0, 2, Q("500 mm")),
    Sketcher.Constraint("DistanceX", -1, 1, 0, 2, Q("5 mm")),
    Sketcher.Constraint("DistanceY", -1, 1, 0, 2, Q("505 mm")),
])
pad15 = body.newObject("PartDesign::Pad", "Pad014")
pad15.Profile = sketch21
pad15.Length = 70
pad15.Reversed = True

sketch22 = body.newObject("Sketcher::SketchObject", "Sketch021")
sketch22.AttachmentSupport = (doc.getObject("XZ_Plane"), [""])
sketch22.MapMode = "FlatFace"
sketch22.AttachmentOffset = App.Placement(Vector(0, 0, -170), App.Rotation())
add_polygon(sketch22, [(0, 0), (0, 510), (610, 510), (610, 0)])
sketch22.addConstraint([
    Sketcher.Constraint("Vertical", 0),
    Sketcher.Constraint("Horizontal", 1),
    Sketcher.Constraint("Vertical", 2),
    Sketcher.Constraint("Horizontal", 3),
    Sketcher.Constraint("Coincident", 3, 2, -1, 1),
    Sketcher.Constraint("DistanceX", 1, 1, 1, 2, Q("610 mm")),
    Sketcher.Constraint("DistanceY", 0, 1, 0, 2, Q("510 mm")),
])
pad16 = body.newObject("PartDesign::Pad", "Pad015")
pad16.Profile = sketch22
pad16.Length = 20
body2 = doc.addObject("PartDesign::Body", "Body001")

sketch23 = body2.newObject("Sketcher::SketchObject", "Sketch022")
sketch23.AttachmentSupport = (doc.getObject("XY_Plane001"), [""])
sketch23.MapMode = "FlatFace"
sketch23.addGeometry(Part.Circle(Vector(305, -70, 0), Vector(0, 0, 1), 20), False)
sketch23.addConstraint([
    Sketcher.Constraint("Diameter", 0, Q("40 mm")),
    Sketcher.Constraint("DistanceX", -1, 1, 0, 3, Q("305 mm")),
    Sketcher.Constraint("DistanceY", 0, 3, -1, 1, Q("70 mm")),
])
pad17 = body2.newObject("PartDesign::Pad", "Pad016")
pad17.Profile = sketch23
pad17.Length = 10
pad17.Reversed = True
body3 = doc.addObject("PartDesign::Body", "Body002")

sketch24 = body3.newObject("Sketcher::SketchObject", "Sketch023")
sketch24.AttachmentSupport = (doc.getObject("XY_Plane002"), [""])
sketch24.MapMode = "FlatFace"
sketch24.AttachmentOffset = App.Placement(Vector(0, 0, 20), App.Rotation())
sketch24.addGeometry(Part.Circle(Vector(305, -70, 0), Vector(0, 0, 1), 20), False)
sketch24.addConstraint([
    Sketcher.Constraint("Diameter", 0, Q("40 mm")),
    Sketcher.Constraint("DistanceX", -1, 1, 0, 3, Q("305 mm")),
    Sketcher.Constraint("DistanceY", 0, 3, -1, 1, Q("70 mm")),
])
pad18 = body3.newObject("PartDesign::Pad", "Pad017")
pad18.Profile = sketch24
pad18.Length = 10
body4 = doc.addObject("PartDesign::Body", "Body003")

sketch25 = body4.newObject("Sketcher::SketchObject", "Sketch024")
sketch25.AttachmentSupport = (doc.getObject("XY_Plane003"), [""])
sketch25.MapMode = "FlatFace"
sketch25.AttachmentOffset = App.Placement(Vector(0, 0, 510), App.Rotation())
sketch25.addGeometry(Part.Circle(Vector(305, -70, 0), Vector(0, 0, 1), 20), False)
sketch25.addConstraint([
    Sketcher.Constraint("Diameter", 0, Q("40 mm")),
    Sketcher.Constraint("DistanceX", -1, 1, 0, 3, Q("305 mm")),
    Sketcher.Constraint("DistanceY", 0, 3, -1, 1, Q("70 mm")),
])
pad19 = body4.newObject("PartDesign::Pad", "Pad018")
pad19.Profile = sketch25
pad19.Length = 10
body5 = doc.addObject("PartDesign::Body", "Body004")

sketch26 = body5.newObject("Sketcher::SketchObject", "Sketch025")
sketch26.AttachmentSupport = (doc.getObject("XY_Plane004"), [""])
sketch26.MapMode = "FlatFace"
sketch26.AttachmentOffset = App.Placement(Vector(0, 0, 490), App.Rotation())
sketch26.addGeometry(Part.Circle(Vector(305, -70, 0), Vector(0, 0, 1), 20), False)
sketch26.addConstraint([
    Sketcher.Constraint("Diameter", 0, Q("40 mm")),
    Sketcher.Constraint("DistanceX", -1, 1, 0, 3, Q("305 mm")),
    Sketcher.Constraint("DistanceY", 0, 3, -1, 1, Q("70 mm")),
])
pad20 = body5.newObject("PartDesign::Pad", "Pad019")
pad20.Profile = sketch26
pad20.Length = 10
pad20.Reversed = True

doc.recompute()
